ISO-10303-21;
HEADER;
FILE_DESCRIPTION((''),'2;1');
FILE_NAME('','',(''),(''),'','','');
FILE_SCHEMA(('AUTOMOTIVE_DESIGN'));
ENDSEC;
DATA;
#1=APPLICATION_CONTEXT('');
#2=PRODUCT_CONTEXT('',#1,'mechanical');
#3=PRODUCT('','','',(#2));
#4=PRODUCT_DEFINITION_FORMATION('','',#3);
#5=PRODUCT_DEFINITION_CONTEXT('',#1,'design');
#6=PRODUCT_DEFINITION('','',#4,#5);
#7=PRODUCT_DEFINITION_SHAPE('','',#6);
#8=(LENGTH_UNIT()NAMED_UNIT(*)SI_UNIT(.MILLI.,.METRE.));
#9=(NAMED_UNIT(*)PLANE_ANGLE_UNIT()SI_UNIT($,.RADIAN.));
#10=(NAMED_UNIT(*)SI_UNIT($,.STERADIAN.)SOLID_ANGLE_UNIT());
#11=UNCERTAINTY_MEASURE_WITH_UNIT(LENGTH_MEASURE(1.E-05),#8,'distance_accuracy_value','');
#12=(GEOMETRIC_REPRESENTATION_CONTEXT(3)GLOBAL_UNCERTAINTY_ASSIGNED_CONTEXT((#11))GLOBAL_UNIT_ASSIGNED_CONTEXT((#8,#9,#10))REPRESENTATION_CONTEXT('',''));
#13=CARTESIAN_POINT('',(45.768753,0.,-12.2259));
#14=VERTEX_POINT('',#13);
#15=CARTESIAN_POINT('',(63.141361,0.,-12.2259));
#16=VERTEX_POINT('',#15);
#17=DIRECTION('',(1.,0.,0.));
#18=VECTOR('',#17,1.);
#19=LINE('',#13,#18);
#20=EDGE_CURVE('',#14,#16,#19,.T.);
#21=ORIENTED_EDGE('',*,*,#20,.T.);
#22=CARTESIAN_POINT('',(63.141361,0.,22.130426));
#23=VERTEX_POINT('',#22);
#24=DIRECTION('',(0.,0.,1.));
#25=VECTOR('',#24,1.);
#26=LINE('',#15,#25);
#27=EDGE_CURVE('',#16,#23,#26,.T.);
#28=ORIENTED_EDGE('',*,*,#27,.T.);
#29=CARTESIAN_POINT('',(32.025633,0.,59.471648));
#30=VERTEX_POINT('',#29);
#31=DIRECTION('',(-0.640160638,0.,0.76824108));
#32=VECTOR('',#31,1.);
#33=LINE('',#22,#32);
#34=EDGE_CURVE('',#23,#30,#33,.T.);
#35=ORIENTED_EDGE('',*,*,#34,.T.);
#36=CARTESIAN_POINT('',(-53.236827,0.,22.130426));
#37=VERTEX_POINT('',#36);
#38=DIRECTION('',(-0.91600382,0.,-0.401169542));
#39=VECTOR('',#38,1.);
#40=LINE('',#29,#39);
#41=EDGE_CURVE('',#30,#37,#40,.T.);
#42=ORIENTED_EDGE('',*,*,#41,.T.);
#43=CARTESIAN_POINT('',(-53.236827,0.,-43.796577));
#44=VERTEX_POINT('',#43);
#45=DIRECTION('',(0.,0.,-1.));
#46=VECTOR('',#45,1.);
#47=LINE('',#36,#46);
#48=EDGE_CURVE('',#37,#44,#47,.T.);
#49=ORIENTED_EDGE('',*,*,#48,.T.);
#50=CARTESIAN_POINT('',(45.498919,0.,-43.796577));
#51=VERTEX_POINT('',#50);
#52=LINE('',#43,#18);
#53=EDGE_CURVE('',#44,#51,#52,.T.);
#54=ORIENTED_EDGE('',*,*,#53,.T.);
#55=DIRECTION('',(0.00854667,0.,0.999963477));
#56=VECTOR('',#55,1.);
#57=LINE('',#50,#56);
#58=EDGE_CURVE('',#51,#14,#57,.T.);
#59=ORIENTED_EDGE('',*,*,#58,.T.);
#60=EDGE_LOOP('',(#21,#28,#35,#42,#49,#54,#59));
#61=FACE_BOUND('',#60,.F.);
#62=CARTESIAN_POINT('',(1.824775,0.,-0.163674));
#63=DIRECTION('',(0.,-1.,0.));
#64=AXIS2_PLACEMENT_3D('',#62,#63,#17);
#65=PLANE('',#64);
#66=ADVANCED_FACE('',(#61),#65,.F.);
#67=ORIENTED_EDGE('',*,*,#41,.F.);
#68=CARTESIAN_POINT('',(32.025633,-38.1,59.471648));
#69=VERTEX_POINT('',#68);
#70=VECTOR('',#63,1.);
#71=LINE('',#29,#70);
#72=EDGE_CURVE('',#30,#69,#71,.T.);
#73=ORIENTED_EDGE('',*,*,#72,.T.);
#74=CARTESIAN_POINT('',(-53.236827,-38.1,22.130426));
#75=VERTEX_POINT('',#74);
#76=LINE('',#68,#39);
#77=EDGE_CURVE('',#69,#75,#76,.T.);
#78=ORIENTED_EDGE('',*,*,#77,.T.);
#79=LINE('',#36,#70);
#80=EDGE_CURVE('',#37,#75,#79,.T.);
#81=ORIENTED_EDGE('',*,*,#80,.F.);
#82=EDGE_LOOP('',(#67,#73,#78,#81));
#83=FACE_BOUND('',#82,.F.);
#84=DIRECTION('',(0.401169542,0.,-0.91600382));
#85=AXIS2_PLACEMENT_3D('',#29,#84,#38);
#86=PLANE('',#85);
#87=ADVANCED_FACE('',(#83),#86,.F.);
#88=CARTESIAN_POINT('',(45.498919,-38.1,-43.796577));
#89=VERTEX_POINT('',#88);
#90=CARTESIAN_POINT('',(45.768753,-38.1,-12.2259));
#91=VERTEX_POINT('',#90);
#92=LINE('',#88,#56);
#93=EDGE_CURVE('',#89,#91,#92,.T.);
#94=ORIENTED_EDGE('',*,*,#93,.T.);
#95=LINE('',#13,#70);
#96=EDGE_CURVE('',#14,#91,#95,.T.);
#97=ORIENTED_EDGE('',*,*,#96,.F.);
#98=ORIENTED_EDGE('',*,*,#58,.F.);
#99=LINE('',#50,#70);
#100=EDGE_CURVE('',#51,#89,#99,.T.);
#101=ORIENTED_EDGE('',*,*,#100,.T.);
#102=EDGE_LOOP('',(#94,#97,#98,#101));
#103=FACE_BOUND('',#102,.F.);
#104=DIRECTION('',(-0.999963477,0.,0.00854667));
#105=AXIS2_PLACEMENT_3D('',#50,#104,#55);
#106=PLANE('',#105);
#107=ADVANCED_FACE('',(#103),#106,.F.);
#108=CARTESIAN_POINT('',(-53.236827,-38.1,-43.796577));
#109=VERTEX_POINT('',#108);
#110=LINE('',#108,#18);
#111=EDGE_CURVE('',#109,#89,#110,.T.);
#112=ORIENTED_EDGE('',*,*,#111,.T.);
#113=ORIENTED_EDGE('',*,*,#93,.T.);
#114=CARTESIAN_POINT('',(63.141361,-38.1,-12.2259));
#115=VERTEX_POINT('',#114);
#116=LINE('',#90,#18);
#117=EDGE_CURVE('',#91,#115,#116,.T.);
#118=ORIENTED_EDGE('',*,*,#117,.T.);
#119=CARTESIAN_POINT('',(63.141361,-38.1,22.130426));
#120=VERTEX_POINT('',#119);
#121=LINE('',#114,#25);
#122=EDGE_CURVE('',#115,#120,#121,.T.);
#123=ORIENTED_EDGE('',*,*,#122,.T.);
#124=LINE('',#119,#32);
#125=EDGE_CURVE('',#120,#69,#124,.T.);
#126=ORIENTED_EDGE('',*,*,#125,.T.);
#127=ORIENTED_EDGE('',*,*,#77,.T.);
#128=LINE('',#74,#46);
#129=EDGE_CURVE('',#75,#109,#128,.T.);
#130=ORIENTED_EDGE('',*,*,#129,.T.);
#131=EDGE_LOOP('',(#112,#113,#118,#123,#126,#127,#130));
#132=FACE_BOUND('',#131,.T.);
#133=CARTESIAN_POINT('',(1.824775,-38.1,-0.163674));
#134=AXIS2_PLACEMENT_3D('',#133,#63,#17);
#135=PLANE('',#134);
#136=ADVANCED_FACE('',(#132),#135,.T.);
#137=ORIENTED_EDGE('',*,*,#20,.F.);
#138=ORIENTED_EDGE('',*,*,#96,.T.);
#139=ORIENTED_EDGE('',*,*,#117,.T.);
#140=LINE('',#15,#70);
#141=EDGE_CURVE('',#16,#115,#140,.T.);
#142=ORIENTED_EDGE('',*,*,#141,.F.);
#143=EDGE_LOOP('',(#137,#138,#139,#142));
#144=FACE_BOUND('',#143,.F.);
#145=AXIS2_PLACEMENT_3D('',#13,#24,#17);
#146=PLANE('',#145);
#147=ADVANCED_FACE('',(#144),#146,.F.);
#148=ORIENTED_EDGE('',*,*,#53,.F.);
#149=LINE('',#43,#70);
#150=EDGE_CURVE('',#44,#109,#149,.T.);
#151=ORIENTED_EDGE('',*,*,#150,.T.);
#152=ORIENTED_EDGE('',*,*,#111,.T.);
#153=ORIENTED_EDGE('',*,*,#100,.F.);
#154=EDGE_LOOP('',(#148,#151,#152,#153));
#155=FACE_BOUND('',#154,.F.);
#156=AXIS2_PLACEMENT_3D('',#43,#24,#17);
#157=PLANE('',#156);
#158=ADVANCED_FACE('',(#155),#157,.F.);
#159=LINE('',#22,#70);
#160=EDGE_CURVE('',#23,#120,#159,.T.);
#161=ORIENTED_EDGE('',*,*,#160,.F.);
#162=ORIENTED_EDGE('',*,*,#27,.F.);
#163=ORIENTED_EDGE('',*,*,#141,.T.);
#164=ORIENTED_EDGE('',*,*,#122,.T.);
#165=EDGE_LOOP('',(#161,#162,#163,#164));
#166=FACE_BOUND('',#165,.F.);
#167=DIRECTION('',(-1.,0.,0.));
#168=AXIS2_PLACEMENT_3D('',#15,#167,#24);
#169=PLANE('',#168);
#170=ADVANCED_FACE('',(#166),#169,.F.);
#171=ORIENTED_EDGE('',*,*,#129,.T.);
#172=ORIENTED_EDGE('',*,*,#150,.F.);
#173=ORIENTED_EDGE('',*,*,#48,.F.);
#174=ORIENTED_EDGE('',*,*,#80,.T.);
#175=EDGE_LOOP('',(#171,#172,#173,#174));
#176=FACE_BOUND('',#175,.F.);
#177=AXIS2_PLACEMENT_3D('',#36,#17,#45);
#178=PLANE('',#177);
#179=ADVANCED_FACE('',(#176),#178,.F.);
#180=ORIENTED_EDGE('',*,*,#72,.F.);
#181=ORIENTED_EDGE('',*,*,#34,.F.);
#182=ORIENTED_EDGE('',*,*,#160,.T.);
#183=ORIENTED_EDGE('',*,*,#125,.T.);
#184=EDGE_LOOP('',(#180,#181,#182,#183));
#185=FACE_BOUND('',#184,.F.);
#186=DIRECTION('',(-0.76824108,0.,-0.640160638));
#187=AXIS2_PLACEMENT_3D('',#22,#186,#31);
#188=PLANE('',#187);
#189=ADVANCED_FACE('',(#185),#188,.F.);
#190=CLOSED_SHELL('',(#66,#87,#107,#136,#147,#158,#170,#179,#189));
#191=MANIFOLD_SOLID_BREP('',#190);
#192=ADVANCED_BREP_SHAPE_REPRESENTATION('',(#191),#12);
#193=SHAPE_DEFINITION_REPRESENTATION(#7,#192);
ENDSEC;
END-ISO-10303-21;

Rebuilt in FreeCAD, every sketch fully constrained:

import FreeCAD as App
import Part
import Sketcher

V = App.Vector
Q = App.Units.Quantity


def add_polygon(sketch, points):
    """Adds a closed chain of lines whose ends are joined by coincident constraints."""
    first, n = sketch.GeometryCount, len(points)
    for a, b in zip(points, points[1:] + points[:1]):
        sketch.addGeometry(Part.LineSegment(App.Vector(*a, 0), App.Vector(*b, 0)), False)
    for i in range(n):
        sketch.addConstraint(Sketcher.Constraint("Coincident", first + i, 2, first + (i + 1) % n, 1))

doc = App.newDocument("Part")
body = doc.addObject("PartDesign::Body", "Body")

sketch1 = body.newObject("Sketcher::SketchObject", "Sketch")
sketch1.AttachmentSupport = (doc.getObject("XZ_Plane"), [""])
sketch1.MapMode = "FlatFace"
add_polygon(sketch1, [(-53.236827, 22.130426), (-53.236827, -43.796577), (45.498919, -43.796577), (45.768753, -12.2259), (63.141361, -12.2259), (63.141361, 22.130426), (32.025633, 59.471648)])
sketch1.addConstraint([
    Sketcher.Constraint("Vertical", 0),
    Sketcher.Constraint("Horizontal", 1),
    Sketcher.Constraint("Horizontal", 3),
    Sketcher.Constraint("Vertical", 4),
    Sketcher.Constraint("Horizontal", 4, 2, 6, 2),
    Sketcher.Constraint("Distance", 6, Q("93.0809 mm")),
    Sketcher.Constraint("DistanceX", 3, 1, 3, 2, Q("17.372608 mm")),
    Sketcher.Constraint("DistanceY", 2, 2, -1, 1, Q("12.2259 mm")),
    Sketcher.Constraint("Distance", 2, Q("31.57183 mm")),
    Sketcher.Constraint("DistanceX", 1, 1, 1, 2, Q("98.735746 mm")),
    Sketcher.Constraint("DistanceY", 0, 2, 0, 1, Q("65.927003 mm")),
    Sketcher.Constraint("DistanceY", 4, 1, 4, 2, Q("34.356326 mm")),
    Sketcher.Constraint("DistanceX", -1, 1, 1, 2, Q("45.498919 mm")),
    Sketcher.Constraint("DistanceY", -1, 1, 5, 2, Q("59.471648 mm")),
])
pad1 = body.newObject("PartDesign::Pad", "Pad")
pad1.Profile = sketch1
pad1.Length = Q("1.5 in")

doc.recompute()
